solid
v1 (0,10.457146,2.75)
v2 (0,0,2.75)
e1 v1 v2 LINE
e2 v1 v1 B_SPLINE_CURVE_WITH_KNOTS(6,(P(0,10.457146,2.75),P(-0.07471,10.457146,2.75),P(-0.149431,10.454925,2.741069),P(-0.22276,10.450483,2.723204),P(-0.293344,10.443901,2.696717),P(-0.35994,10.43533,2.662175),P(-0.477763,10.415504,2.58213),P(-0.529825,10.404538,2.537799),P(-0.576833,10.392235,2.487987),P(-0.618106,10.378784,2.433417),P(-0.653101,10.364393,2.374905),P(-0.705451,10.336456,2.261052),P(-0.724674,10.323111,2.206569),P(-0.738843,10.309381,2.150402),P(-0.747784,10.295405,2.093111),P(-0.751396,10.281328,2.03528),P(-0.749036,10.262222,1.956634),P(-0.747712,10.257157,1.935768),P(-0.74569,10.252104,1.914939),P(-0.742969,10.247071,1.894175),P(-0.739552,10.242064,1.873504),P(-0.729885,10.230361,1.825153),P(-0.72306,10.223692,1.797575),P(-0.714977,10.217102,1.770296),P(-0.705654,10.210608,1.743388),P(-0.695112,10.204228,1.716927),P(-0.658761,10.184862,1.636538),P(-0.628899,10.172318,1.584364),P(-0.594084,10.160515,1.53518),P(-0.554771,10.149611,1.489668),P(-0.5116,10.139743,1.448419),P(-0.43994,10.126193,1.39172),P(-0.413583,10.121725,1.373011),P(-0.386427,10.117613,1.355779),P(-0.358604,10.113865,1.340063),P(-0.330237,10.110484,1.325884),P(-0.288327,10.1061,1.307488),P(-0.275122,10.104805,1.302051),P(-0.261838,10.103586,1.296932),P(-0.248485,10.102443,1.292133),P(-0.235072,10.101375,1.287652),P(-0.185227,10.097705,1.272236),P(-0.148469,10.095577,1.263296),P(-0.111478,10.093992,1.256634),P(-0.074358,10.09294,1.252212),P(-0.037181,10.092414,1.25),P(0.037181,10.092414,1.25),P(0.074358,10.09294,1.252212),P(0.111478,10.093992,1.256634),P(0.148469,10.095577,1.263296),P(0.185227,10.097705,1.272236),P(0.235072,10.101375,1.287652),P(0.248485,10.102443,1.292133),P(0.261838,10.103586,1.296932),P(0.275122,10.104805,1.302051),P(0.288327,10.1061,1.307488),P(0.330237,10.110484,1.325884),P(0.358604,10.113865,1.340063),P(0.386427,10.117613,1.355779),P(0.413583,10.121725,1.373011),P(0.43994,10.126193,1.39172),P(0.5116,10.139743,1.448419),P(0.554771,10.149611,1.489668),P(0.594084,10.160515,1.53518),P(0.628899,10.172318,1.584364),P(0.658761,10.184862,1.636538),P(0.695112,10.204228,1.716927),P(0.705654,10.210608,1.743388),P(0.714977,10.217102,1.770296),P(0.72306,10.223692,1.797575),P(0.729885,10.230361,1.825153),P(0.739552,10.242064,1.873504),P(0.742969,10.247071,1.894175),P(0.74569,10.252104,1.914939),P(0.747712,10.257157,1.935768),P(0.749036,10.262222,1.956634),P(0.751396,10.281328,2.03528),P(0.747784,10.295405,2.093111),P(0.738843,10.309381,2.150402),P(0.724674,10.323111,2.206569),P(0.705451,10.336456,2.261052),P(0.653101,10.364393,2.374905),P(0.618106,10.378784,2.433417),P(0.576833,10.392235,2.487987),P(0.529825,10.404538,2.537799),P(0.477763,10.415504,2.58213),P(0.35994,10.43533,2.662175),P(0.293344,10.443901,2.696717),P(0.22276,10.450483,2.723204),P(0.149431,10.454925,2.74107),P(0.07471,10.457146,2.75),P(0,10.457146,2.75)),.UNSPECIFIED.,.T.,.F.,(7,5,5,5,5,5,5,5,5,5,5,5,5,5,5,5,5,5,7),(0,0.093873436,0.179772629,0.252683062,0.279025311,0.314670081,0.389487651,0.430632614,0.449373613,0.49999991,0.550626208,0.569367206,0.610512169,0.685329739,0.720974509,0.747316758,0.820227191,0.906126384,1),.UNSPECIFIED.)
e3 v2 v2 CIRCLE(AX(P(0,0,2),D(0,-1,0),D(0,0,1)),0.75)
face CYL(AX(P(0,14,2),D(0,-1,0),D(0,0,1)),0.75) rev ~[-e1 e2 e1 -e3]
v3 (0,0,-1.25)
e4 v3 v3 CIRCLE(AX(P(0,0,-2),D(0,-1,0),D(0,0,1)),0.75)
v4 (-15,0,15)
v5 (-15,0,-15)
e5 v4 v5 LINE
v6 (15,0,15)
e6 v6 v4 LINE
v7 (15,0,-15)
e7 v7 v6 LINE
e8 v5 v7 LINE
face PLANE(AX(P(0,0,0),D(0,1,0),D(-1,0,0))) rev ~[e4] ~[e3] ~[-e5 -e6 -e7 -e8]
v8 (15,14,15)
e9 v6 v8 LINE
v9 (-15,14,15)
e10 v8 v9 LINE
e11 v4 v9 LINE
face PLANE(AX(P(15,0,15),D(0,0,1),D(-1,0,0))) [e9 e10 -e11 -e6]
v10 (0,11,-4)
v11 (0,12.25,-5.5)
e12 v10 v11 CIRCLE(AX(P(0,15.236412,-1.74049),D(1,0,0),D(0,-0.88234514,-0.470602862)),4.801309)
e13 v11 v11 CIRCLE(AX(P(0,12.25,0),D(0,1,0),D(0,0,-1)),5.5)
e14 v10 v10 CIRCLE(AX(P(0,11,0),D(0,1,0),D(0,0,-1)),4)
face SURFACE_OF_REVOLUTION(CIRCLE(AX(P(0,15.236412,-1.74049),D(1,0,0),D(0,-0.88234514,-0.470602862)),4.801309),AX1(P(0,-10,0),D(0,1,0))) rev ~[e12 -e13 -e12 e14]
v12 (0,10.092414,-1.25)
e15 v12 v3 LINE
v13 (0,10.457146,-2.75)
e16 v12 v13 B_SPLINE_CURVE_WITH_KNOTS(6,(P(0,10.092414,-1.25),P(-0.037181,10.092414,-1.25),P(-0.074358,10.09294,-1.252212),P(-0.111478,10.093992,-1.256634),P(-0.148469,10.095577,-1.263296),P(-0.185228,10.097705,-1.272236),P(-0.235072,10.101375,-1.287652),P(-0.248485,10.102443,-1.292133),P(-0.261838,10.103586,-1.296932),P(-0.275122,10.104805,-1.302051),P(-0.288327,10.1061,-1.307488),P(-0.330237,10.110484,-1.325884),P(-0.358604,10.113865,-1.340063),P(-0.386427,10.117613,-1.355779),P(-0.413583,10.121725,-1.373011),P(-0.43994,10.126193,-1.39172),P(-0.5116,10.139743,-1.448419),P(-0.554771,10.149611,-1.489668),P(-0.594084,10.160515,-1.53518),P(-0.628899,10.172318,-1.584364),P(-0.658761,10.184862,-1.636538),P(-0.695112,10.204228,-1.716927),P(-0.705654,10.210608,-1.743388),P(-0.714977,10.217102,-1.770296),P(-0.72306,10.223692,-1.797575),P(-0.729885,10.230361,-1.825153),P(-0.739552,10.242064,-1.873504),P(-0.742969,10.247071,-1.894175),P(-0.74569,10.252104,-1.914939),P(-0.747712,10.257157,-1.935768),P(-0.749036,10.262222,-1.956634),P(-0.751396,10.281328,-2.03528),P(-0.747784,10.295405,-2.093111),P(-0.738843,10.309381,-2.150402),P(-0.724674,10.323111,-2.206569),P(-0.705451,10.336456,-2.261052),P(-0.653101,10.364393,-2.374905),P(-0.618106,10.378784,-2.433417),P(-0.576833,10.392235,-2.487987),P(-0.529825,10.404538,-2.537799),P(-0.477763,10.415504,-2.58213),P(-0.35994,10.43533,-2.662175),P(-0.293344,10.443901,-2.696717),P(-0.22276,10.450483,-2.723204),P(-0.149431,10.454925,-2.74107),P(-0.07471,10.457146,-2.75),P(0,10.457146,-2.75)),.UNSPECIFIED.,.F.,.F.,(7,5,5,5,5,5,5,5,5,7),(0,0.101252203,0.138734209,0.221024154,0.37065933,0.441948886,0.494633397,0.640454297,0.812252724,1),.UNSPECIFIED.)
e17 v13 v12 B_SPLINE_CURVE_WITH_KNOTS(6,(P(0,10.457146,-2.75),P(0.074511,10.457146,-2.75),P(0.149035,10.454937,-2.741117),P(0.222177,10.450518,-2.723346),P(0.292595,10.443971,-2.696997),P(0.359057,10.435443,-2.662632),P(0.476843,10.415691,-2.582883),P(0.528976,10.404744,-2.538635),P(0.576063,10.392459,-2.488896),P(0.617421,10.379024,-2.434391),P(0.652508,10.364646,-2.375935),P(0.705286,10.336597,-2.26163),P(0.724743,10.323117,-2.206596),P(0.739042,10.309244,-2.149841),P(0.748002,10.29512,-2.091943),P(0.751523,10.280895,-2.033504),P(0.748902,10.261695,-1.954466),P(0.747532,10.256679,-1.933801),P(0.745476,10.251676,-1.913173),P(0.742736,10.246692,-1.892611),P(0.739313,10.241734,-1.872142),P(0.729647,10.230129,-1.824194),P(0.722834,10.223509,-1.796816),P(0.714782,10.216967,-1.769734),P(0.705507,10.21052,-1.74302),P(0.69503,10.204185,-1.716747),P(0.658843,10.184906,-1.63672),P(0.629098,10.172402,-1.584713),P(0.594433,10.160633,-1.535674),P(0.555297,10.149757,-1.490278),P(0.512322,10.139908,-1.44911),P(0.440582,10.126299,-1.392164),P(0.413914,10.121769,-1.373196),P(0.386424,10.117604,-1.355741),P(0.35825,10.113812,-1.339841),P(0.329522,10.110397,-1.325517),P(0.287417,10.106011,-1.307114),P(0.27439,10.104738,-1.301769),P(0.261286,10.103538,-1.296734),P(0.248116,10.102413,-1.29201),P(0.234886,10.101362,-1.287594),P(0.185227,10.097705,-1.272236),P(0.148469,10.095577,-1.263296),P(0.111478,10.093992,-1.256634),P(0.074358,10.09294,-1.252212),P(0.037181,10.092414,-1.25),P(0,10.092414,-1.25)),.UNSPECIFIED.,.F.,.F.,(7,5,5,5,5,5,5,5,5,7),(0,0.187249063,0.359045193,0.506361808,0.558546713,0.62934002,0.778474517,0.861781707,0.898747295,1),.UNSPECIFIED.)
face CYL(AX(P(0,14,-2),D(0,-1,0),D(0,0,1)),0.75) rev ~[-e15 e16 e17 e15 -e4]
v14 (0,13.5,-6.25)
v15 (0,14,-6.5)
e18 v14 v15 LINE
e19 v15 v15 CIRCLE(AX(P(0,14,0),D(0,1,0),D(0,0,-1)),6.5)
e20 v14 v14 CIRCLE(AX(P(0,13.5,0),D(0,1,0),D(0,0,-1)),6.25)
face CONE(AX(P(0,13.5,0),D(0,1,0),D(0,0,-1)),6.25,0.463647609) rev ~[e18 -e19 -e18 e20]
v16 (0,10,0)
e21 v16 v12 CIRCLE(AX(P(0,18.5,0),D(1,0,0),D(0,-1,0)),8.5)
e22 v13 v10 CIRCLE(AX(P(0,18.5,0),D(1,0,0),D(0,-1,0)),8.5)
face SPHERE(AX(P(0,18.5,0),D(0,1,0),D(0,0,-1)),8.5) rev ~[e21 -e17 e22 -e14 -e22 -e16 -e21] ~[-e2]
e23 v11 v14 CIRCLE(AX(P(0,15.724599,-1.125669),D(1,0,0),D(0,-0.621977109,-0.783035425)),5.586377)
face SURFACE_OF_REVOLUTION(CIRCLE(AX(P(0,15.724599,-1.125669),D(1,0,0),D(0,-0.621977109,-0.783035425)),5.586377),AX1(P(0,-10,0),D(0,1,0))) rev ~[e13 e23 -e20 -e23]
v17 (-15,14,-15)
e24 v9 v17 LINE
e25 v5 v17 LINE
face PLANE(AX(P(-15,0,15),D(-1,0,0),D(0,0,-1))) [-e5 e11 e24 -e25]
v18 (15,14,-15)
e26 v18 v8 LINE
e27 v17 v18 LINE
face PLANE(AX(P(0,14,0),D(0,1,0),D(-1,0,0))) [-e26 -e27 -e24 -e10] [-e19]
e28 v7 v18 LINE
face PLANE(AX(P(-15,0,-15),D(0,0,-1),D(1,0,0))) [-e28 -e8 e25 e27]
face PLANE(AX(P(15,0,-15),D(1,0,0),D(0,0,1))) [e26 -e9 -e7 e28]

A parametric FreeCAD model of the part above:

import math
import FreeCAD as App
import Part
import Sketcher

V = App.Vector
Q = App.Units.Quantity


def add_polygon(sketch, points):
    """Adds a closed chain of lines whose ends are joined by coincident constraints."""
    first, n = sketch.GeometryCount, len(points)
    for a, b in zip(points, points[1:] + points[:1]):
        sketch.addGeometry(Part.LineSegment(App.Vector(*a, 0), App.Vector(*b, 0)), False)
    for i in range(n):
        sketch.addConstraint(Sketcher.Constraint("Coincident", first + i, 2, first + (i + 1) % n, 1))

doc = App.newDocument("Part")
params = doc.addObject("Spreadsheet::Sheet", "Params")
for row, (alias, value) in enumerate([
    ("sketch1_width", "30 mm"),
    ("pad1_length", "14 mm"),
    ("sketch2_width", "4 mm"),
    ("sketch2_height", "6.5 mm"),
    ("groove_angle", "360 deg"),
    ("sketch3_diameter", "1.5 mm"),
    ("hole_diameter", "1.5 mm"),
    ("hole_depth", "100 mm"),
], start=1):
    params.set(f"A{row}", alias)
    params.set(f"B{row}", "=" + value)
    params.setAlias(f"B{row}", alias)

body = doc.addObject("PartDesign::Body", "Body")

# Sketch on XZ plane
sketch1 = body.newObject("Sketcher::SketchObject", "Sketch")
sketch1.AttachmentSupport = (doc.getObject("XZ_Plane"), [""])
sketch1.MapMode = "FlatFace"
add_polygon(sketch1, [(-15, 15), (15, 15), (15, -15), (-15, -15)])  # lines 0-3
sketch1.addConstraint(Sketcher.Constraint("Horizontal", 0))
sketch1.addConstraint(Sketcher.Constraint("Vertical", 1))
sketch1.addConstraint(Sketcher.Constraint("Horizontal", 2))
sketch1.addConstraint(Sketcher.Constraint("Vertical", 3))
sketch1.addConstraint(Sketcher.Constraint("Symmetric", 0, 2, 2, 2, -1, 1))
sketch1.addConstraint(Sketcher.Constraint("Equal", 2, 1))
sketch1.addConstraint(Sketcher.Constraint("DistanceX", 0, 1, 0, 2, Q("30 mm")))
sketch1.setExpression("Constraints[10]", "Params.sketch1_width")
pad1 = body.newObject("PartDesign::Pad", "Pad")
pad1.Profile = sketch1
pad1.setExpression("Length", "Params.pad1_length")
pad1.Reversed = True

# Sketch on YZ plane
sketch2 = body.newObject("Sketcher::SketchObject", "Sketch001")
sketch2.AttachmentSupport = (doc.getObject("YZ_Plane"), [""])
sketch2.MapMode = "FlatFace"
sketch2.addGeometry(Part.LineSegment(V(14, -6.5, 0), V(14, 0, 0)), False)
sketch2.addGeometry(Part.LineSegment(V(14, 0, 0), V(10, 0, 0)), False)
sketch2.addGeometry(Part.ArcOfCircle(Part.Circle(V(18.5, 0, 0), V(0, 0, 1), 8.5), math.radians(180), math.radians(208)), False)
sketch2.addGeometry(Part.ArcOfCircle(Part.Circle(V(15.2, -1.7, 0), V(0, 0, 1), 4.8), math.radians(-152), math.radians(-128)), False)
sketch2.addGeometry(Part.ArcOfCircle(Part.Circle(V(15.7, -1.1, 0), V(0, 0, 1), 5.6), math.radians(-128.46), math.radians(-113.47)), False)
sketch2.addGeometry(Part.LineSegment(V(13.5, -6.2, 0), V(14, -6.5, 0)), False)
sketch2.addConstraint(Sketcher.Constraint("Coincident", 0, 2, 1, 1))
sketch2.addConstraint(Sketcher.Constraint("Coincident", 1, 2, 2, 1))
sketch2.addConstraint(Sketcher.Constraint("Tangent", 2, 2, 3, 1))
sketch2.addConstraint(Sketcher.Constraint("Tangent", 3, 2, 4, 1))
sketch2.addConstraint(Sketcher.Constraint("Coincident", 4, 2, 5, 1))
sketch2.addConstraint(Sketcher.Constraint("Coincident", 5, 2, 0, 1))
sketch2.addConstraint(Sketcher.Constraint("Vertical", 0))
sketch2.addConstraint(Sketcher.Constraint("Horizontal", 1))
sketch2.addConstraint(Sketcher.Constraint("PointOnObject", 2, 3, -1))
sketch2.addConstraint(Sketcher.Constraint("PointOnObject", 0, 2, -1))
sketch2.addConstraint(Sketcher.Constraint("DistanceX", 1, 2, 1, 1, Q("4 mm")))
sketch2.addConstraint(Sketcher.Constraint("DistanceY", 0, 1, 0, 2, Q("6.5 mm")))
sketch2.addConstraint(Sketcher.Constraint("DistanceY", 2, 2, -1, 1, Q("4 mm")))
sketch2.addConstraint(Sketcher.Constraint("DistanceX", 1, 2, 2, 2, Q("1 mm")))
sketch2.addConstraint(Sketcher.Constraint("DistanceY", 5, 2, 3, 2, Q("1 mm")))
sketch2.addConstraint(Sketcher.Constraint("DistanceX", 4, 2, 0, 2, Q("0.5 mm")))
sketch2.addConstraint(Sketcher.Constraint("DistanceY", 4, 2, -1, 1, Q("6.25 mm")))
sketch2.addConstraint(Sketcher.Constraint("DistanceX", 2, 2, 3, 2, Q("1.25 mm")))
sketch2.addConstraint(Sketcher.Constraint("DistanceX", -1, 1, 0, 2, Q("14 mm")))
sketch2.setExpression("Constraints[10]", "Params.sketch2_width")
sketch2.setExpression("Constraints[11]", "Params.sketch2_height")
groove = body.newObject("PartDesign::Groove", "Groove")
groove.Profile = sketch2
groove.ReferenceAxis = (sketch2, ["H_Axis"])
groove.setExpression("Angle", "Params.groove_angle")

# Sketch on XZ plane
sketch3 = body.newObject("Sketcher::SketchObject", "Sketch002")
sketch3.AttachmentSupport = (doc.getObject("XZ_Plane"), [""])
sketch3.MapMode = "FlatFace"
sketch3.AttachmentOffset = App.Placement(V(0, 0, -14), App.Rotation())
sketch3.addGeometry(Part.Circle(V(0, 2, 0), V(0, 0, 1), 0.8), False)
sketch3.addGeometry(Part.Circle(V(0, -2, 0), V(0, 0, 1), 0.8), False)
sketch3.addConstraint(Sketcher.Constraint("Equal", 0, 1))
sketch3.addConstraint(Sketcher.Constraint("Symmetric", 0, 3, 1, 3, -1, 1))
sketch3.addConstraint(Sketcher.Constraint("PointOnObject", 0, 3, -2))
sketch3.addConstraint(Sketcher.Constraint("Diameter", 0, Q("1.5 mm")))
sketch3.addConstraint(Sketcher.Constraint("DistanceY", -1, 1, 0, 3, Q("2 mm")))
sketch3.setExpression("Constraints[3]", "Params.sketch3_diameter")
doc.recompute()
hole = body.newObject("PartDesign::Hole", "Hole")
hole.Profile = sketch3
hole.ThreadType = "None"
hole.setExpression("Diameter", "Params.hole_diameter")
hole.DepthType = "Dimension"
hole.setExpression("Depth", "Params.hole_depth")
hole.DrillPoint = "Angled"
hole.DrillPointAngle = 118
hole.Reversed = True

doc.recompute()
